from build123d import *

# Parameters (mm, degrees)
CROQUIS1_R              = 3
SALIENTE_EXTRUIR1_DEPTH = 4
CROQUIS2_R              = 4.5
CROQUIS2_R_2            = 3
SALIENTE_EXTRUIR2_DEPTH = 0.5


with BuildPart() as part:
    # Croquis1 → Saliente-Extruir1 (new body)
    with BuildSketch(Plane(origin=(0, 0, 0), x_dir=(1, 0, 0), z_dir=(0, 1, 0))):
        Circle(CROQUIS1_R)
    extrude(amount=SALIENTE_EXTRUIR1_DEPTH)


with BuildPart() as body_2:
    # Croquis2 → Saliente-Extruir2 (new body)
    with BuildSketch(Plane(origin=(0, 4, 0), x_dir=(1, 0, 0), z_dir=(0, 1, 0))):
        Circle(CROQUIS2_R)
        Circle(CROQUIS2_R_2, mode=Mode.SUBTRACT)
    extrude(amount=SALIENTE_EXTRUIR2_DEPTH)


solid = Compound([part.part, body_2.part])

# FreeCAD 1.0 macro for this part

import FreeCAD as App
import Part
import Sketcher
from FreeCAD import Vector

doc = App.newDocument("Part")
params = doc.addObject("Spreadsheet::Sheet", "Params")
for row, (alias, value) in enumerate([
    ("sketch1_diameter", "6 mm"),
    ("pad1_length", "4 mm"),
    ("sketch2_diameter", "9 mm"),
    ("sketch2_diameter2", "6 mm"),
    ("pad2_length", "0.5 mm"),
], start=1):
    params.set(f"A{row}", alias)
    params.set(f"B{row}", "=" + value)
    params.setAlias(f"B{row}", alias)

body = doc.addObject("PartDesign::Body", "Body")

sketch1 = body.newObject("Sketcher::SketchObject", "Sketch")
sketch1.AttachmentSupport = (doc.getObject("XZ_Plane"), [""])
sketch1.MapMode = "FlatFace"
sketch1.addGeometry(Part.Circle(Vector(0, 0, 0), Vector(0, 0, 1), 3), False)
sketch1.addConstraint([
    Sketcher.Constraint("Coincident", 0, 3, -1, 1),
    Sketcher.Constraint("Diameter", 0, 6.0),
])
sketch1.setExpression("Constraints[1]", "Params.sketch1_diameter")
pad1 = body.newObject("PartDesign::Pad", "Pad")
pad1.Profile = sketch1
pad1.setExpression("Length", "Params.pad1_length")
pad1.Reversed = True
body2 = doc.addObject("PartDesign::Body", "Body001")

sketch2 = body2.newObject("Sketcher::SketchObject", "Sketch001")
sketch2.AttachmentSupport = (doc.getObject("XZ_Plane001"), [""])
sketch2.MapMode = "FlatFace"
sketch2.AttachmentOffset = App.Placement(Vector(0, 0, -4), App.Rotation())
sketch2.addGeometry([
    Part.Circle(Vector(0, 0, 0), Vector(0, 0, 1), 4.5),
    Part.Circle(Vector(0, 0, 0), Vector(0, 0, 1), 3),
], False)
sketch2.addConstraint([
    Sketcher.Constraint("Coincident", 0, 3, -1, 1),
    Sketcher.Constraint("Coincident", 1, 3, -1, 1),
    Sketcher.Constraint("Diameter", 0, 9.0),
    Sketcher.Constraint("Diameter", 1, 6.0),
])
sketch2.setExpression("Constraints[2]", "Params.sketch2_diameter")
sketch2.setExpression("Constraints[3]", "Params.sketch2_diameter2")
pad2 = body2.newObject("PartDesign::Pad", "Pad001")
pad2.Profile = sketch2
pad2.setExpression("Length", "Params.pad2_length")
pad2.Reversed = True

doc.recompute()
